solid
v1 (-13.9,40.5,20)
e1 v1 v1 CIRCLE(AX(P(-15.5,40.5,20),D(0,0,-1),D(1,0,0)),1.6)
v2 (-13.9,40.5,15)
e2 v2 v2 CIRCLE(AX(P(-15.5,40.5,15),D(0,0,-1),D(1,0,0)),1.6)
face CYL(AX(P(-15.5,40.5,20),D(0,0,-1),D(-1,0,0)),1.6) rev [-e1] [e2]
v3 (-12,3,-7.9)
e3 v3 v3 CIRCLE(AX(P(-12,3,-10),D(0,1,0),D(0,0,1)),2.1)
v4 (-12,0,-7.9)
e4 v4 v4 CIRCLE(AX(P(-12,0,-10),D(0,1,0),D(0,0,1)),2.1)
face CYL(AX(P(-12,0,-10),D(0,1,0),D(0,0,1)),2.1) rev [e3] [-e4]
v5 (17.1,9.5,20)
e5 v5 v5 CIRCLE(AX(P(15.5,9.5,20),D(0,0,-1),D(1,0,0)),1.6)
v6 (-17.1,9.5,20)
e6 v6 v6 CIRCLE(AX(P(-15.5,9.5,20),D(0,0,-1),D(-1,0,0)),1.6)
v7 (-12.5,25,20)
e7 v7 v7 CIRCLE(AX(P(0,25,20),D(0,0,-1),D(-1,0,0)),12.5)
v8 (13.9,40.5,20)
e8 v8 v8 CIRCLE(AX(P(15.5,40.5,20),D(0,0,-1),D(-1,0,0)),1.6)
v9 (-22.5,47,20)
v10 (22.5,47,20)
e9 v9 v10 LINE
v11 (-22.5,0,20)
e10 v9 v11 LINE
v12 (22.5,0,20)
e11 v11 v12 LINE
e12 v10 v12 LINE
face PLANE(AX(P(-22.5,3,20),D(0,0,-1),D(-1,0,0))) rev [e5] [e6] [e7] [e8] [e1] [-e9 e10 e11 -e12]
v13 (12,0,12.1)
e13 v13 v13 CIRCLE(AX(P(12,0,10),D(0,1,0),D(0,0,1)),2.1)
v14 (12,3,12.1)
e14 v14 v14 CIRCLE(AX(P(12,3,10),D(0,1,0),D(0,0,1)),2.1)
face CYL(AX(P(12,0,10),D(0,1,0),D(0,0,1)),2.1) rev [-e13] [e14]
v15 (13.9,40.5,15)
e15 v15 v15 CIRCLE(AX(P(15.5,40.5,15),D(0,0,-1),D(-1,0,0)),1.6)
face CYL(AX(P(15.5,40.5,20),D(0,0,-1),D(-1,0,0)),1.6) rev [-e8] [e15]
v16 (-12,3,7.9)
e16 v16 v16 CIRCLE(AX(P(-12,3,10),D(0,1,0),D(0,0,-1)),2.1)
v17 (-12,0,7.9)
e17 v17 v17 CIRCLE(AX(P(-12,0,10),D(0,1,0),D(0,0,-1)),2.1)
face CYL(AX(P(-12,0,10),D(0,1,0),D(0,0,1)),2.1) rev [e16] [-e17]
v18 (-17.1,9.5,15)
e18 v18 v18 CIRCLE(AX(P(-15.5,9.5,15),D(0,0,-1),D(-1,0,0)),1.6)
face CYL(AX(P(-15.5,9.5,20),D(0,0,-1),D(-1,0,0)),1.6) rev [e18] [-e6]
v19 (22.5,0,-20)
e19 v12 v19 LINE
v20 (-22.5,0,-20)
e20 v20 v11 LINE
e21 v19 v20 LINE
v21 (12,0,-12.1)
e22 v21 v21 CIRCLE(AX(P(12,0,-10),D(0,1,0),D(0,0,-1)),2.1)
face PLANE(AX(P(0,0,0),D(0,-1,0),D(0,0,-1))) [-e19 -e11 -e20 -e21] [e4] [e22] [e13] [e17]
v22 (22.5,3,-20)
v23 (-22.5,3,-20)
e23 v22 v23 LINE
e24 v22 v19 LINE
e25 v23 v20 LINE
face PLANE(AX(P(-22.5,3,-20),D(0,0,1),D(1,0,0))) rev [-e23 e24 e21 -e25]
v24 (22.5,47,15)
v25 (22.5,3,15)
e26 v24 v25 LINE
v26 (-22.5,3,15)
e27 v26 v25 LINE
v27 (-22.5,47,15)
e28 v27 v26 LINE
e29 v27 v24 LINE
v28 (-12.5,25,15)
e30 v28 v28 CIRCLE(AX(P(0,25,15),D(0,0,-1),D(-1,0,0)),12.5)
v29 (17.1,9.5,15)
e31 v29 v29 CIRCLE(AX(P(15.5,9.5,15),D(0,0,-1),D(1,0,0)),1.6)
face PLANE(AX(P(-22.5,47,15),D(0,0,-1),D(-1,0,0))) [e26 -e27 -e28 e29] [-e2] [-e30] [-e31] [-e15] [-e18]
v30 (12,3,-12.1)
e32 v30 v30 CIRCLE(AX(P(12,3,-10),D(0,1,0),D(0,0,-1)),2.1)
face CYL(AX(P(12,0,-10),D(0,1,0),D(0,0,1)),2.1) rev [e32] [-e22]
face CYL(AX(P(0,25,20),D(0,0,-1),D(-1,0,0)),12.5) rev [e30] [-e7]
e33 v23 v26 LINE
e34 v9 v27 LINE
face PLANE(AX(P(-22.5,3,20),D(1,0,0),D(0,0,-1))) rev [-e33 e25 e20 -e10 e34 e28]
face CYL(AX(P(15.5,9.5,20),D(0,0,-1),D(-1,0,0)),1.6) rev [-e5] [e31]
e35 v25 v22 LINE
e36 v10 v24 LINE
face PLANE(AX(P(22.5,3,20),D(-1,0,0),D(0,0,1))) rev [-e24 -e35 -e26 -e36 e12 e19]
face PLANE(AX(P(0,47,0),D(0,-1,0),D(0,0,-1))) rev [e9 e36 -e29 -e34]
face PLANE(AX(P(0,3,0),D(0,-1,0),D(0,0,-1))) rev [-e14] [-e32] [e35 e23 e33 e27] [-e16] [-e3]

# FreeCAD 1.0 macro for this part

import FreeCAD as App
import Part
import Sketcher
Q = App.Units.Quantity


def add_polygon(sketch, points):
    """Adds a closed chain of lines whose ends are joined by coincident constraints."""
    first, n = sketch.GeometryCount, len(points)
    for a, b in zip(points, points[1:] + points[:1]):
        sketch.addGeometry(Part.LineSegment(App.Vector(*a, 0), App.Vector(*b, 0)), False)
    for i in range(n):
        sketch.addConstraint(Sketcher.Constraint("Coincident", first + i, 2, first + (i + 1) % n, 1))

doc = App.newDocument("Part")
body = doc.addObject("PartDesign::Body", "Body")

# Sketch on XZ plane
sketch1 = doc.addObject("Sketcher::SketchObject", "Sketch")
body.addObject(sketch1)
sketch1.AttachmentSupport = (doc.XZ_Plane, [""])
sketch1.MapMode = "FlatFace"
add_polygon(sketch1, [(-22, -20), (-22, 20), (22, 20), (22, -20)])  # lines 0-3
sketch1.addConstraint(Sketcher.Constraint("Vertical", 0))
sketch1.addConstraint(Sketcher.Constraint("Horizontal", 1))
sketch1.addConstraint(Sketcher.Constraint("Vertical", 2))
sketch1.addConstraint(Sketcher.Constraint("Horizontal", 3))
sketch1.addConstraint(Sketcher.Constraint("Symmetric", 0, 2, 2, 2, -1, 1))
sketch1.addConstraint(Sketcher.Constraint("DistanceX", 1, 1, 1, 2, Q("45 mm")))
sketch1.addConstraint(Sketcher.Constraint("DistanceY", 0, 1, 0, 2, Q("40 mm")))
pad1 = doc.addObject("PartDesign::Pad", "Pad")
body.addObject(pad1)
pad1.Profile = sketch1
pad1.Length = 3
pad1.Reversed = True

# Sketch on XZ plane
sketch2 = doc.addObject("Sketcher::SketchObject", "Sketch001")
body.addObject(sketch2)
sketch2.AttachmentSupport = (doc.XZ_Plane, [""])
sketch2.MapMode = "FlatFace"
sketch2.AttachmentOffset = App.Placement(App.Vector(0, 0, -3), App.Rotation())
sketch2.addGeometry(Part.Circle(App.Vector(-12, -10, 0), App.Vector(0, 0, 1), 2.1), False)
sketch2.addGeometry(Part.Circle(App.Vector(12, -10, 0), App.Vector(0, 0, 1), 2.1), False)
sketch2.addGeometry(Part.Circle(App.Vector(12, 10, 0), App.Vector(0, 0, 1), 2.1), False)
sketch2.addGeometry(Part.Circle(App.Vector(-12, 10, 0), App.Vector(0, 0, 1), 2.1), False)
sketch2.addConstraint(Sketcher.Constraint("Equal", 0, 1))
sketch2.addConstraint(Sketcher.Constraint("Equal", 1, 2))
sketch2.addConstraint(Sketcher.Constraint("Equal", 2, 3))
sketch2.addConstraint(Sketcher.Constraint("Symmetric", 0, 3, 2, 3, -1, 1))
sketch2.addConstraint(Sketcher.Constraint("Symmetric", 1, 3, 3, 3, -1, 1))
sketch2.addConstraint(Sketcher.Constraint("Symmetric", 0, 3, 1, 3, -2))
sketch2.addConstraint(Sketcher.Constraint("Diameter", 0, Q("4.2 mm")))
sketch2.addConstraint(Sketcher.Constraint("DistanceX", 0, 3, -1, 1, Q("12 mm")))
sketch2.addConstraint(Sketcher.Constraint("DistanceY", 0, 3, -1, 1, Q("10 mm")))
pocket1 = doc.addObject("PartDesign::Pocket", "Pocket")
body.addObject(pocket1)
pocket1.Profile = sketch2
pocket1.Type = "ThroughAll"
pocket1.Reversed = True

# Sketch on XZ plane
sketch3 = doc.addObject("Sketcher::SketchObject", "Sketch002")
body.addObject(sketch3)
sketch3.AttachmentSupport = (doc.XZ_Plane, [""])
sketch3.MapMode = "FlatFace"
sketch3.AttachmentOffset = App.Placement(App.Vector(0, 0, -3), App.Rotation())
add_polygon(sketch3, [(-22, 15), (-22, 20), (22, 20), (22, 15)])  # lines 0-3
sketch3.addConstraint(Sketcher.Constraint("Vertical", 0))
sketch3.addConstraint(Sketcher.Constraint("Horizontal", 1))
sketch3.addConstraint(Sketcher.Constraint("Vertical", 2))
sketch3.addConstraint(Sketcher.Constraint("Horizontal", 3))
sketch3.addConstraint(Sketcher.Constraint("DistanceX", 1, 1, 1, 2, Q("45 mm")))
sketch3.addConstraint(Sketcher.Constraint("DistanceY", 0, 1, 0, 2, Q("5 mm")))
sketch3.addConstraint(Sketcher.Constraint("DistanceY", -1, 1, 0, 2, Q("20 mm")))
sketch3.addConstraint(Sketcher.Constraint("DistanceX", 0, 2, -1, 1, Q("22.5 mm")))
pad2 = doc.addObject("PartDesign::Pad", "Pad001")
body.addObject(pad2)
pad2.Profile = sketch3
pad2.Length = 44
pad2.Reversed = True

# Sketch on XY plane
sketch4 = doc.addObject("Sketcher::SketchObject", "Sketch003")
body.addObject(sketch4)
sketch4.AttachmentSupport = (doc.XY_Plane, [""])
sketch4.MapMode = "FlatFace"
sketch4.AttachmentOffset = App.Placement(App.Vector(0, 0, 15), App.Rotation())
sketch4.addGeometry(Part.Circle(App.Vector(15.5, 40.5, 0), App.Vector(0, 0, 1), 1.6), False)
sketch4.addGeometry(Part.Circle(App.Vector(-15.5, 40.5, 0), App.Vector(0, 0, 1), 1.6), False)
sketch4.addGeometry(Part.Circle(App.Vector(-15.5, 9.5, 0), App.Vector(0, 0, 1), 1.6), False)
sketch4.addGeometry(Part.Circle(App.Vector(15.5, 9.5, 0), App.Vector(0, 0, 1), 1.6), False)
sketch4.addGeometry(Part.Circle(App.Vector(0, 25, 0), App.Vector(0, 0, 1), 12.5), False)
sketch4.addConstraint(Sketcher.Constraint("Equal", 0, 1))
sketch4.addConstraint(Sketcher.Constraint("Equal", 1, 2))
sketch4.addConstraint(Sketcher.Constraint("Equal", 2, 3))
sketch4.addConstraint(Sketcher.Constraint("Symmetric", 0, 3, 1, 3, -2))
sketch4.addConstraint(Sketcher.Constraint("Symmetric", 2, 3, 3, 3, -2))
sketch4.addConstraint(Sketcher.Constraint("PointOnObject", 4, 3, -2))
sketch4.addConstraint(Sketcher.Constraint("Vertical", 1, 3, 2, 3))
sketch4.addConstraint(Sketcher.Constraint("Diameter", 4, Q("25 mm")))
sketch4.addConstraint(Sketcher.Constraint("Diameter", 0, Q("3.2 mm")))
sketch4.addConstraint(Sketcher.Constraint("DistanceY", -1, 1, 4, 3, Q("25 mm")))
sketch4.addConstraint(Sketcher.Constraint("DistanceX", 1, 3, 0, 3, Q("31 mm")))
sketch4.addConstraint(Sketcher.Constraint("DistanceY", 2, 3, 1, 3, Q("31 mm")))
sketch4.addConstraint(Sketcher.Constraint("DistanceY", -1, 1, 0, 3, Q("40.5 mm")))
pocket2 = doc.addObject("PartDesign::Pocket", "Pocket001")
body.addObject(pocket2)
pocket2.Profile = sketch4
pocket2.Type = "ThroughAll"
pocket2.Reversed = True

doc.recompute()
